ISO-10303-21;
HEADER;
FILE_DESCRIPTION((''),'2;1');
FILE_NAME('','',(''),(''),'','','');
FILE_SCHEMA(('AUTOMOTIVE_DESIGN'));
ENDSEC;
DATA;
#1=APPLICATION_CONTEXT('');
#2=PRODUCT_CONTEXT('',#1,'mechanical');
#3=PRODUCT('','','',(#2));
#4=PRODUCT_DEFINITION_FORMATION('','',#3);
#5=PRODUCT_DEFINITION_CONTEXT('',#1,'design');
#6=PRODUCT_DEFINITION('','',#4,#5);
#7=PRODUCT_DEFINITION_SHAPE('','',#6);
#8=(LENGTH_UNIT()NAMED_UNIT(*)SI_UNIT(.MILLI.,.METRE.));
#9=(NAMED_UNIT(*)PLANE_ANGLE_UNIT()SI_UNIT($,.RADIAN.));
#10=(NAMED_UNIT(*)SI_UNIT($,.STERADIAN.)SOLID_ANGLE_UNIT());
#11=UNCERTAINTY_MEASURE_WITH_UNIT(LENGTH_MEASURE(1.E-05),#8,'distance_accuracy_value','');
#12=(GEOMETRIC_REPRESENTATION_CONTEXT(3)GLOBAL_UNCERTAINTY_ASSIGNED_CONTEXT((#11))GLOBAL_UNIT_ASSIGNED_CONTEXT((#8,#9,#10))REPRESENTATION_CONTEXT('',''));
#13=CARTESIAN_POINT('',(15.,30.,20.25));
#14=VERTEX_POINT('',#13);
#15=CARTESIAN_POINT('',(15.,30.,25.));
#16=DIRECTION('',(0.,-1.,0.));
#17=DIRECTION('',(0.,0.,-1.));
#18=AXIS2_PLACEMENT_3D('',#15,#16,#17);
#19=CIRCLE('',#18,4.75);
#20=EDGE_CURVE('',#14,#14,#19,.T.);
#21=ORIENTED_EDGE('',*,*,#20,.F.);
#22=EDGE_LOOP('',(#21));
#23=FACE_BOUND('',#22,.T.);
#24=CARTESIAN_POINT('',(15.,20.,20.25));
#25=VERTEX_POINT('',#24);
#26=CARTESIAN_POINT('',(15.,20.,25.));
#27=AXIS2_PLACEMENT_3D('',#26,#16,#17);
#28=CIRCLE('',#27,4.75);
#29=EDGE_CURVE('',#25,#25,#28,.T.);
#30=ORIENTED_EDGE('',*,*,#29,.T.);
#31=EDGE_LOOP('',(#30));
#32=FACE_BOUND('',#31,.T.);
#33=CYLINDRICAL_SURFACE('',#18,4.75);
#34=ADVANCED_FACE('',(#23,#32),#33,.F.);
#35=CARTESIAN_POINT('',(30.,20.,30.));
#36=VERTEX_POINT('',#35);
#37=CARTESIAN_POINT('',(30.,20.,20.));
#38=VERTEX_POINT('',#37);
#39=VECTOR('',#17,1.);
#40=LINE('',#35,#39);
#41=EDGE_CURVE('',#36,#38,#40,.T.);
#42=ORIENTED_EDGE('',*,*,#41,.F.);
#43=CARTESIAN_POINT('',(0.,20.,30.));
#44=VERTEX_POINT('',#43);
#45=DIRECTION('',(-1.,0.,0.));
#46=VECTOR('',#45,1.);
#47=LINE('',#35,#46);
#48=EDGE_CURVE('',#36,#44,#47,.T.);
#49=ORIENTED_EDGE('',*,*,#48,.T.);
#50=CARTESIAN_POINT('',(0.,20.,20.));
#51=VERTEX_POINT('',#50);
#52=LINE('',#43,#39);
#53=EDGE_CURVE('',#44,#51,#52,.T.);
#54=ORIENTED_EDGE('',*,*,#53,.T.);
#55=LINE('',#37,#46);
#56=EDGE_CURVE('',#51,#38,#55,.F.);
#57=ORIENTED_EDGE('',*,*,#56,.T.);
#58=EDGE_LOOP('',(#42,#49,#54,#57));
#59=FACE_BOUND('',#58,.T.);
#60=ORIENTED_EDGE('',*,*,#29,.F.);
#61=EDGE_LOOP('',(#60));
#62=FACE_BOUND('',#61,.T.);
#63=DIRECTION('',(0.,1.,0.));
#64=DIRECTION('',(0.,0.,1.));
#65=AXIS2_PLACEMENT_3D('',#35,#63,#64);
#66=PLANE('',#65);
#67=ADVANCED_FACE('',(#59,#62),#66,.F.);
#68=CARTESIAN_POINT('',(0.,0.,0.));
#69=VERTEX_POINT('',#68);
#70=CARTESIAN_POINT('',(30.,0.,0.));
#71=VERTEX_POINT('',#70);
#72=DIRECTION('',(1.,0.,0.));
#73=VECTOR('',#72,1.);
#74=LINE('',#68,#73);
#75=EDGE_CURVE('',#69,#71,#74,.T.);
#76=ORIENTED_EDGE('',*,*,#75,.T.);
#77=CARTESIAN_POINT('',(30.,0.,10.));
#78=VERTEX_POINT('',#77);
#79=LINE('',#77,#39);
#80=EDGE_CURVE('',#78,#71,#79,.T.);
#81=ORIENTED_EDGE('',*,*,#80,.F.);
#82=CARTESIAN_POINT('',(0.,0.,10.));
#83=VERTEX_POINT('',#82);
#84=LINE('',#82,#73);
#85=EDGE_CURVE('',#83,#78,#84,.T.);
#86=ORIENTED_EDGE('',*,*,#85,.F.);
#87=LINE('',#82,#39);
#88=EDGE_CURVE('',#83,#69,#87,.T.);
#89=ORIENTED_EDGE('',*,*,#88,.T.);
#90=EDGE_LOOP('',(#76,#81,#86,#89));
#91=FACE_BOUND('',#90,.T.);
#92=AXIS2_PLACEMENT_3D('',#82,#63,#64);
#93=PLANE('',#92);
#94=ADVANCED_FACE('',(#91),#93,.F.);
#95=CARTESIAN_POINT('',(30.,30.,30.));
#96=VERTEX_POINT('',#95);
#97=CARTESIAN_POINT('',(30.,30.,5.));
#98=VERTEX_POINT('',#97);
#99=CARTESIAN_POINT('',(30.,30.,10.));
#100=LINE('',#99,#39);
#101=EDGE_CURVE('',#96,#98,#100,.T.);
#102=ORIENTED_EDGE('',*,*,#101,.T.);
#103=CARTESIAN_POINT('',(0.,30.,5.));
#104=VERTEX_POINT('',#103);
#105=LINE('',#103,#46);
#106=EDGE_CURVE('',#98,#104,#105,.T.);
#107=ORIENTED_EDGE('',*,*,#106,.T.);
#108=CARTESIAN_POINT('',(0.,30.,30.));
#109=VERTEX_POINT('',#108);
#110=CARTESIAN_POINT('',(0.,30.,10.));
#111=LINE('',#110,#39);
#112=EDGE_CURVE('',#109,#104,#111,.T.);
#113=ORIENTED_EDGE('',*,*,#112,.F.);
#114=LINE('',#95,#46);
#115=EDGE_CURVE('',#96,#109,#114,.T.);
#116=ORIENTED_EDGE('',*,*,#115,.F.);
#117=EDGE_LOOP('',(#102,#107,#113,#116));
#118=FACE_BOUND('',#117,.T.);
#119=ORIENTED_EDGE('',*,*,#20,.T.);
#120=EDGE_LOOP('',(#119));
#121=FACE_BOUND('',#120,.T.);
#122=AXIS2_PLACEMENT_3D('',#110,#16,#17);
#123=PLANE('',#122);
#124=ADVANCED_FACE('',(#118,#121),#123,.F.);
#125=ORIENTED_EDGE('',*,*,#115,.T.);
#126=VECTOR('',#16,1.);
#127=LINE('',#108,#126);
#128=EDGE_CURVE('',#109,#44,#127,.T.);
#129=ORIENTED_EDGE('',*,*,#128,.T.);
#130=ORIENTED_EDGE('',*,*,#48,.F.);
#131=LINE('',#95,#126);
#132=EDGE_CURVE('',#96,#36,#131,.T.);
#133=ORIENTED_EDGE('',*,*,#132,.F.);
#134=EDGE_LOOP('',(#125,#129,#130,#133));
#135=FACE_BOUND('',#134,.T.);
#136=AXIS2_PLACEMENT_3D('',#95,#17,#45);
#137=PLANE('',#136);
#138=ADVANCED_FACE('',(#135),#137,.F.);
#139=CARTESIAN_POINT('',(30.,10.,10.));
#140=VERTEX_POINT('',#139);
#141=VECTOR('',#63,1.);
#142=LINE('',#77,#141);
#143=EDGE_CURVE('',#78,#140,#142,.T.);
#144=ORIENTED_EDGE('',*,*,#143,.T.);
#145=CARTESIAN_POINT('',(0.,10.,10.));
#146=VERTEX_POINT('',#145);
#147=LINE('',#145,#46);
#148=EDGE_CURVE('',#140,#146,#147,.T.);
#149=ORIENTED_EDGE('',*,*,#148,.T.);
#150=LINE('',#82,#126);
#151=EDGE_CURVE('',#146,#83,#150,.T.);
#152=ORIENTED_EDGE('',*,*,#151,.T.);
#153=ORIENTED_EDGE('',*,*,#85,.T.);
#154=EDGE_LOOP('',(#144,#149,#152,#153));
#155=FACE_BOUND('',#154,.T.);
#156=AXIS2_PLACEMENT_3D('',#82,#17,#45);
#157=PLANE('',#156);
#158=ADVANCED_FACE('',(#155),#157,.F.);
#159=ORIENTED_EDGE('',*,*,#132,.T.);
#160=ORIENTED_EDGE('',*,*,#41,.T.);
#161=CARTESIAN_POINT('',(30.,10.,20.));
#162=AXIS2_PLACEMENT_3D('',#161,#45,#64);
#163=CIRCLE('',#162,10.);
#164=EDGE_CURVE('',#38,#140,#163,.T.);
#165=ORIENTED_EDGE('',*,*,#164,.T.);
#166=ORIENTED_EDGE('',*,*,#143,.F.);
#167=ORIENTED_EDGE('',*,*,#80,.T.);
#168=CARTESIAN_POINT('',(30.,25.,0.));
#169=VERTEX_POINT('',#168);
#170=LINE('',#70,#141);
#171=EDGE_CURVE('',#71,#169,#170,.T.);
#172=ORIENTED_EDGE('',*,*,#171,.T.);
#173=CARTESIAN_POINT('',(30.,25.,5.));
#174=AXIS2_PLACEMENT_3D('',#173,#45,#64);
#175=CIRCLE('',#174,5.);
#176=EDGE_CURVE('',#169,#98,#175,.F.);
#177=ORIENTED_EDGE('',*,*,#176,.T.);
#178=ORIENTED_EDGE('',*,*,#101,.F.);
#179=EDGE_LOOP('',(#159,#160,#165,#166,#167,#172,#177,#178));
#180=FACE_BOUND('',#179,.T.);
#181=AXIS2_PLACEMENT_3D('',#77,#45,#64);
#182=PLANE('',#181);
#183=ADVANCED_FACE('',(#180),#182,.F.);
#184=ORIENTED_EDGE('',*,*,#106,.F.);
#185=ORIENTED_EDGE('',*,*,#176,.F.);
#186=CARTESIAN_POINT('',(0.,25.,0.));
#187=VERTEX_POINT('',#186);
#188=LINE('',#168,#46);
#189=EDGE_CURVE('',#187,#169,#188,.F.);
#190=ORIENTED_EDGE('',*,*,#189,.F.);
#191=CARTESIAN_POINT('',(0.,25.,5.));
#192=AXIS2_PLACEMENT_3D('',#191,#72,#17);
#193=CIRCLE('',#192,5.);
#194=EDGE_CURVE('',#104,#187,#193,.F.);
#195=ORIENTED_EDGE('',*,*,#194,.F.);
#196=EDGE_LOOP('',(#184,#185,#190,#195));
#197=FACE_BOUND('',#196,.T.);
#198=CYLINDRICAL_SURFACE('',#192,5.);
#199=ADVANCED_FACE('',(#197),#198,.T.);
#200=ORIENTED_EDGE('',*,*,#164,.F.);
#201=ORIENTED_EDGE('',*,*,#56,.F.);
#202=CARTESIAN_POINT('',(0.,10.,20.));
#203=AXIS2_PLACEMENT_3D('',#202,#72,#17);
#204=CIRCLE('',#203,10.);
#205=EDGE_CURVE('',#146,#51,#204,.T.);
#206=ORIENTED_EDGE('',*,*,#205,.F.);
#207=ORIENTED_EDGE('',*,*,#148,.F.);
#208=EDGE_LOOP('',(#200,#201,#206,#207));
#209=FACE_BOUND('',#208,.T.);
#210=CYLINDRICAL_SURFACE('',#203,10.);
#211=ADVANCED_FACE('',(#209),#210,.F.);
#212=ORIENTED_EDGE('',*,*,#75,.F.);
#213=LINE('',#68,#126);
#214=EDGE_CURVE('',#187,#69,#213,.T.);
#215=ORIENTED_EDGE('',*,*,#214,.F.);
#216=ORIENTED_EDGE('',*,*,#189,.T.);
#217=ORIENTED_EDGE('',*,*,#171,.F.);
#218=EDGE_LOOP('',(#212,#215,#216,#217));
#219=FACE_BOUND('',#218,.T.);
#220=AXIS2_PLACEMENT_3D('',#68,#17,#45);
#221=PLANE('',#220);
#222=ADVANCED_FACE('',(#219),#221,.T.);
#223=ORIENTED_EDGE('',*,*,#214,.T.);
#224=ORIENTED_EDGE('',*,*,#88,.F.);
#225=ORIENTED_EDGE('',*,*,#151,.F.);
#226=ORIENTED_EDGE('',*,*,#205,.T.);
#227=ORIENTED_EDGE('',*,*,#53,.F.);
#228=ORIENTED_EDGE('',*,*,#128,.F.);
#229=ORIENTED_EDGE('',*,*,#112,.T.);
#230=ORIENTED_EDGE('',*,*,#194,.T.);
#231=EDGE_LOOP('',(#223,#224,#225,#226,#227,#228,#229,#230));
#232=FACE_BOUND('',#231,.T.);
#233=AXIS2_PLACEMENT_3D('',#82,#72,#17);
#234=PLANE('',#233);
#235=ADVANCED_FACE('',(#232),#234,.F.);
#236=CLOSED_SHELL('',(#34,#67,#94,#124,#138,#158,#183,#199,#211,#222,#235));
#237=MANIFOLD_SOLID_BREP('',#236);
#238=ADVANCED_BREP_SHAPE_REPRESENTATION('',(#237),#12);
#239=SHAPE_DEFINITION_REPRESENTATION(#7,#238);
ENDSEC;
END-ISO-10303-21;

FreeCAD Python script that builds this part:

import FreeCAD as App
import Part
import Sketcher

V = App.Vector
Q = App.Units.Quantity


def edges_at(feature, points):
    """Names of the edges that pass closest to the given points."""
    edges = feature.Shape.Edges
    near = lambda p: min(range(len(edges)), key=lambda i: edges[i].distToShape(Part.Vertex(*p))[0])
    return sorted({f"Edge{near(p) + 1}" for p in points})

doc = App.newDocument("Part")
body = doc.addObject("PartDesign::Body", "Body")

# Sketch on XY plane
sketch1 = doc.addObject("Sketcher::SketchObject", "Sketch")
body.addObject(sketch1)
sketch1.AttachmentSupport = (doc.XY_Plane, [""])
sketch1.MapMode = "FlatFace"
sketch1.addGeometry([
    Part.LineSegment(V(0, 30, 0), V(0, 0, 0)),
    Part.LineSegment(V(0, 0, 0), V(30, 0, 0)),
    Part.LineSegment(V(30, 0, 0), V(30, 30, 0)),
    Part.LineSegment(V(30, 30, 0), V(0, 30, 0)),
], False)
sketch1.addConstraint([
    Sketcher.Constraint("Coincident", 0, 2, 1, 1),
    Sketcher.Constraint("Coincident", 1, 2, 2, 1),
    Sketcher.Constraint("Coincident", 2, 2, 3, 1),
    Sketcher.Constraint("Coincident", 3, 2, 0, 1),
    Sketcher.Constraint("Vertical", 0),
    Sketcher.Constraint("Horizontal", 1),
    Sketcher.Constraint("Vertical", 2),
    Sketcher.Constraint("Horizontal", 3),
    Sketcher.Constraint("Coincident", 0, 2, -1, 1),
    Sketcher.Constraint("Equal", 3, 0),
    Sketcher.Constraint("DistanceX", 1, 1, 1, 2, Q("30 mm")),
])
pad1 = doc.addObject("PartDesign::Pad", "Pad")
body.addObject(pad1)
pad1.Profile = sketch1
pad1.Length = 10

# Sketch on YZ plane
sketch2 = doc.addObject("Sketcher::SketchObject", "Sketch001")
body.addObject(sketch2)
sketch2.AttachmentSupport = (doc.YZ_Plane, [""])
sketch2.MapMode = "FlatFace"
sketch2.addGeometry([
    Part.LineSegment(V(30, 10, 0), V(20, 10, 0)),
    Part.LineSegment(V(20, 10, 0), V(20, 30, 0)),
    Part.LineSegment(V(20, 30, 0), V(30, 30, 0)),
    Part.LineSegment(V(30, 30, 0), V(30, 10, 0)),
], False)
sketch2.addConstraint([
    Sketcher.Constraint("Coincident", 0, 2, 1, 1),
    Sketcher.Constraint("Coincident", 1, 2, 2, 1),
    Sketcher.Constraint("Coincident", 2, 2, 3, 1),
    Sketcher.Constraint("Coincident", 3, 2, 0, 1),
    Sketcher.Constraint("Horizontal", 0),
    Sketcher.Constraint("Vertical", 1),
    Sketcher.Constraint("Horizontal", 2),
    Sketcher.Constraint("Vertical", 3),
    Sketcher.Constraint("DistanceX", 0, 2, 0, 1, Q("10 mm")),
    Sketcher.Constraint("DistanceY", 1, 1, 1, 2, Q("20 mm")),
    Sketcher.Constraint("DistanceX", -1, 1, 0, 2, Q("20 mm")),
    Sketcher.Constraint("DistanceY", -1, 1, 0, 2, Q("10 mm")),
])
pad2 = doc.addObject("PartDesign::Pad", "Pad001")
body.addObject(pad2)
pad2.Profile = sketch2
pad2.Length = 30
doc.recompute()

fillet = doc.addObject("PartDesign::Fillet", "Fillet")
body.addObject(fillet)
fillet.Base = (pad2, edges_at(pad2, [(15, 20, 10)]))
fillet.Radius = 10

# Sketch on XZ plane
sketch3 = doc.addObject("Sketcher::SketchObject", "Sketch002")
body.addObject(sketch3)
sketch3.AttachmentSupport = (doc.XZ_Plane, [""])
sketch3.MapMode = "FlatFace"
sketch3.AttachmentOffset = App.Placement(V(0, 0, -20), App.Rotation())
sketch3.addGeometry(Part.Circle(V(15, 25, 0), V(0, 0, 1), 4.8), False)
sketch3.addConstraint([
    Sketcher.Constraint("Diameter", 0, Q("9.5 mm")),
    Sketcher.Constraint("DistanceX", -1, 1, 0, 3, Q("15 mm")),
    Sketcher.Constraint("DistanceY", -1, 1, 0, 3, Q("25 mm")),
])
pocket1 = doc.addObject("PartDesign::Pocket", "Pocket")
body.addObject(pocket1)
pocket1.Profile = sketch3
pocket1.Type = "ThroughAll"
doc.recompute()

fillet2 = doc.addObject("PartDesign::Fillet", "Fillet001")
body.addObject(fillet2)
fillet2.Base = (pocket1, edges_at(pocket1, [(15, 30, 0)]))
fillet2.Radius = 5

doc.recompute()
